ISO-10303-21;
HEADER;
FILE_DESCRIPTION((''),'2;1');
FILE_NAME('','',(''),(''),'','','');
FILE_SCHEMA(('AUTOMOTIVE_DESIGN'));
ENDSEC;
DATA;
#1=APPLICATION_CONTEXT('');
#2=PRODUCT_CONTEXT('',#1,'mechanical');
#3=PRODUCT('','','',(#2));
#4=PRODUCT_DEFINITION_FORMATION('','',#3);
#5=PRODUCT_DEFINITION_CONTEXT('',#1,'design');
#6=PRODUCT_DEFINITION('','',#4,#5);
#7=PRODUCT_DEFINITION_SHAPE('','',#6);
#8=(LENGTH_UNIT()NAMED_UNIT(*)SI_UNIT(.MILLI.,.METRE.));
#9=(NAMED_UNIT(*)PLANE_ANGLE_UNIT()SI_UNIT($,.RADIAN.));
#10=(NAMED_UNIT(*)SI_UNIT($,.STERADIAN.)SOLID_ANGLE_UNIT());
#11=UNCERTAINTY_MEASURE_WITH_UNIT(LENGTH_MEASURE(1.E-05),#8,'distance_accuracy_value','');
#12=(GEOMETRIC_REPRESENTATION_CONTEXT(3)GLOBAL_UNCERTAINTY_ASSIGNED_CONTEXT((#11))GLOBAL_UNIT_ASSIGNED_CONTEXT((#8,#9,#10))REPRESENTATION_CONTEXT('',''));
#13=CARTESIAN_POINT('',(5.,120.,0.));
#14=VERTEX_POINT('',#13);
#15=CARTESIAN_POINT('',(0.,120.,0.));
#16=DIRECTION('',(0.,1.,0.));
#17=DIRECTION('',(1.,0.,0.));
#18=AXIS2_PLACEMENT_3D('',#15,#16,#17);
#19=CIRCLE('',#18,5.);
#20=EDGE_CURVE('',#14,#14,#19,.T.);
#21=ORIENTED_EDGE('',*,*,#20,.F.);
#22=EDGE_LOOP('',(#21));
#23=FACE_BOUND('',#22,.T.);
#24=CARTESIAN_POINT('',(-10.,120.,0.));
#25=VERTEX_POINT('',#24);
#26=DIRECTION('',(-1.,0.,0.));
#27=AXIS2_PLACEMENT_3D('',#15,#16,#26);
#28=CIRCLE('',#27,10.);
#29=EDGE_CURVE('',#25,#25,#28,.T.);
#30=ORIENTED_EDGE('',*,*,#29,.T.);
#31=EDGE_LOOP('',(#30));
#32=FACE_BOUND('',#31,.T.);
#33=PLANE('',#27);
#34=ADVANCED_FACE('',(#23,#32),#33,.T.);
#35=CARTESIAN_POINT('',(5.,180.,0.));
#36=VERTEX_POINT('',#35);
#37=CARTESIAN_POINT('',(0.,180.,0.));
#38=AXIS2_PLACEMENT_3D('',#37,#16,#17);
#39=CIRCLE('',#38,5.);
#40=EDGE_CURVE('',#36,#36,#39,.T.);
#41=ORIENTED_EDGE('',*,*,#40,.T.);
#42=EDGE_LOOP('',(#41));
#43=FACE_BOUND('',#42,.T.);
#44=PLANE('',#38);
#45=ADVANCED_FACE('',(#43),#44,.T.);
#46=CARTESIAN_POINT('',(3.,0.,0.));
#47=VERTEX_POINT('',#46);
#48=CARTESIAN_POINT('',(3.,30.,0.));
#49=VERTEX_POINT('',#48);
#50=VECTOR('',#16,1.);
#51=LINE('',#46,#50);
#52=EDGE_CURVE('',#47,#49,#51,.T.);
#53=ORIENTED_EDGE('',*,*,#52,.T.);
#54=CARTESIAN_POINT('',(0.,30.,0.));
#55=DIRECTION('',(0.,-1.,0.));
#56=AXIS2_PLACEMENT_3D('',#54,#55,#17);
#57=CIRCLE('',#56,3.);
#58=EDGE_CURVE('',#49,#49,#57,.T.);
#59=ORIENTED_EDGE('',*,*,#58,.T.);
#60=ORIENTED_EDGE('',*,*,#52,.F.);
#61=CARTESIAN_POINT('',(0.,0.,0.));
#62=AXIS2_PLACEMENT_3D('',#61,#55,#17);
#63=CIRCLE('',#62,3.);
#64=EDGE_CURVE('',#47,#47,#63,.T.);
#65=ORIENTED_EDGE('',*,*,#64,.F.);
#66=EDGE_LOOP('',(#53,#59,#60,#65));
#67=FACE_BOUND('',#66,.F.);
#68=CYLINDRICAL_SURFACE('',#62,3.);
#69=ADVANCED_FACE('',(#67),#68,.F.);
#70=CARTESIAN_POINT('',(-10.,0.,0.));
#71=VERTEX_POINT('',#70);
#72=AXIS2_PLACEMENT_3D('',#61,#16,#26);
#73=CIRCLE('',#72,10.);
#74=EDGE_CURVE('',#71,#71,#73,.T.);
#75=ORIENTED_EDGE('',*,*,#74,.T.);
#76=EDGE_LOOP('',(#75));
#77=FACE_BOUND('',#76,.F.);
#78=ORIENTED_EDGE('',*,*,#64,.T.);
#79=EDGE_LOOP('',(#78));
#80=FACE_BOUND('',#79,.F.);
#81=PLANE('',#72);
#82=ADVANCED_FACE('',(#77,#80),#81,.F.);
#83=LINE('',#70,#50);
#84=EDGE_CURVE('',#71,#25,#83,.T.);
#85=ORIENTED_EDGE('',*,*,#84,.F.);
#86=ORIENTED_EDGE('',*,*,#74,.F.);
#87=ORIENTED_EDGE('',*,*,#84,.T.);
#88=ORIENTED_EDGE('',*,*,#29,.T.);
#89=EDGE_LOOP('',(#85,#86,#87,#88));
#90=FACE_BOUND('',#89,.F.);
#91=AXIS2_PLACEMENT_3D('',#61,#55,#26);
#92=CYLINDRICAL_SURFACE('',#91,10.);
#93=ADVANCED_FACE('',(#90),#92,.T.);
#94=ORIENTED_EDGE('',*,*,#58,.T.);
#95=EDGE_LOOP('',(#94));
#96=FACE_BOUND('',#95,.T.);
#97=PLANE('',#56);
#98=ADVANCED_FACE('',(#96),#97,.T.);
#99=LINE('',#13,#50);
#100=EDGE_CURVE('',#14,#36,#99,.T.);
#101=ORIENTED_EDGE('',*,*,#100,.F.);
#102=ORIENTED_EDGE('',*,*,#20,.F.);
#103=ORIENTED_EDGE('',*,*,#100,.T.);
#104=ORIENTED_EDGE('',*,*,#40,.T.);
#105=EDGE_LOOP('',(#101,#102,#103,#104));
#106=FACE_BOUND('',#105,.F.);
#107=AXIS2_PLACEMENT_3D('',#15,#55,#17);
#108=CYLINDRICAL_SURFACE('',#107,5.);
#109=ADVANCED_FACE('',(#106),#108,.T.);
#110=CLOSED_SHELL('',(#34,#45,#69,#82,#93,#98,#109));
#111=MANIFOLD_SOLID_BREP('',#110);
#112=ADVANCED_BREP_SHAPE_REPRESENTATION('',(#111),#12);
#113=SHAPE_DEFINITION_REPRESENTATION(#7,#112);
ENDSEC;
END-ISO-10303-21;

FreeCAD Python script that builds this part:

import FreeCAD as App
import Part
import Sketcher

doc = App.newDocument("Part")
body = doc.addObject("PartDesign::Body", "Body")

# Sketch on XZ plane
sketch1 = doc.addObject("Sketcher::SketchObject", "Sketch")
body.addObject(sketch1)
sketch1.AttachmentSupport = (doc.XZ_Plane, [""])
sketch1.MapMode = "FlatFace"
sketch1.addGeometry(Part.Circle(App.Vector(0, 0, 0), App.Vector(0, 0, 1), 10), False)
sketch1.addConstraint([
    Sketcher.Constraint("Coincident", 0, 3, -1, 1),
    Sketcher.Constraint("Diameter", 0, 20.0),
])
pad1 = doc.addObject("PartDesign::Pad", "Pad")
body.addObject(pad1)
pad1.Profile = sketch1
pad1.Length = 120
pad1.Reversed = True

# Sketch on XZ plane
sketch2 = doc.addObject("Sketcher::SketchObject", "Sketch001")
body.addObject(sketch2)
sketch2.AttachmentSupport = (doc.XZ_Plane, [""])
sketch2.MapMode = "FlatFace"
sketch2.AttachmentOffset = App.Placement(App.Vector(0, 0, -120), App.Rotation())
sketch2.addGeometry(Part.Circle(App.Vector(0, 0, 0), App.Vector(0, 0, 1), 5), False)
sketch2.addConstraint([
    Sketcher.Constraint("Coincident", 0, 3, -1, 1),
    Sketcher.Constraint("Diameter", 0, 10.0),
])
pad2 = doc.addObject("PartDesign::Pad", "Pad001")
body.addObject(pad2)
pad2.Profile = sketch2
pad2.Length = 60
pad2.Reversed = True

# Sketch on XZ plane
sketch3 = doc.addObject("Sketcher::SketchObject", "Sketch002")
body.addObject(sketch3)
sketch3.AttachmentSupport = (doc.XZ_Plane, [""])
sketch3.MapMode = "FlatFace"
sketch3.addGeometry(Part.Circle(App.Vector(0, 0, 0), App.Vector(0, 0, 1), 3), False)
sketch3.addConstraint([
    Sketcher.Constraint("Coincident", 0, 3, -1, 1),
    Sketcher.Constraint("Diameter", 0, 6.0),
])
pocket1 = doc.addObject("PartDesign::Pocket", "Pocket")
body.addObject(pocket1)
pocket1.Profile = sketch3
pocket1.Length = 30

doc.recompute()
